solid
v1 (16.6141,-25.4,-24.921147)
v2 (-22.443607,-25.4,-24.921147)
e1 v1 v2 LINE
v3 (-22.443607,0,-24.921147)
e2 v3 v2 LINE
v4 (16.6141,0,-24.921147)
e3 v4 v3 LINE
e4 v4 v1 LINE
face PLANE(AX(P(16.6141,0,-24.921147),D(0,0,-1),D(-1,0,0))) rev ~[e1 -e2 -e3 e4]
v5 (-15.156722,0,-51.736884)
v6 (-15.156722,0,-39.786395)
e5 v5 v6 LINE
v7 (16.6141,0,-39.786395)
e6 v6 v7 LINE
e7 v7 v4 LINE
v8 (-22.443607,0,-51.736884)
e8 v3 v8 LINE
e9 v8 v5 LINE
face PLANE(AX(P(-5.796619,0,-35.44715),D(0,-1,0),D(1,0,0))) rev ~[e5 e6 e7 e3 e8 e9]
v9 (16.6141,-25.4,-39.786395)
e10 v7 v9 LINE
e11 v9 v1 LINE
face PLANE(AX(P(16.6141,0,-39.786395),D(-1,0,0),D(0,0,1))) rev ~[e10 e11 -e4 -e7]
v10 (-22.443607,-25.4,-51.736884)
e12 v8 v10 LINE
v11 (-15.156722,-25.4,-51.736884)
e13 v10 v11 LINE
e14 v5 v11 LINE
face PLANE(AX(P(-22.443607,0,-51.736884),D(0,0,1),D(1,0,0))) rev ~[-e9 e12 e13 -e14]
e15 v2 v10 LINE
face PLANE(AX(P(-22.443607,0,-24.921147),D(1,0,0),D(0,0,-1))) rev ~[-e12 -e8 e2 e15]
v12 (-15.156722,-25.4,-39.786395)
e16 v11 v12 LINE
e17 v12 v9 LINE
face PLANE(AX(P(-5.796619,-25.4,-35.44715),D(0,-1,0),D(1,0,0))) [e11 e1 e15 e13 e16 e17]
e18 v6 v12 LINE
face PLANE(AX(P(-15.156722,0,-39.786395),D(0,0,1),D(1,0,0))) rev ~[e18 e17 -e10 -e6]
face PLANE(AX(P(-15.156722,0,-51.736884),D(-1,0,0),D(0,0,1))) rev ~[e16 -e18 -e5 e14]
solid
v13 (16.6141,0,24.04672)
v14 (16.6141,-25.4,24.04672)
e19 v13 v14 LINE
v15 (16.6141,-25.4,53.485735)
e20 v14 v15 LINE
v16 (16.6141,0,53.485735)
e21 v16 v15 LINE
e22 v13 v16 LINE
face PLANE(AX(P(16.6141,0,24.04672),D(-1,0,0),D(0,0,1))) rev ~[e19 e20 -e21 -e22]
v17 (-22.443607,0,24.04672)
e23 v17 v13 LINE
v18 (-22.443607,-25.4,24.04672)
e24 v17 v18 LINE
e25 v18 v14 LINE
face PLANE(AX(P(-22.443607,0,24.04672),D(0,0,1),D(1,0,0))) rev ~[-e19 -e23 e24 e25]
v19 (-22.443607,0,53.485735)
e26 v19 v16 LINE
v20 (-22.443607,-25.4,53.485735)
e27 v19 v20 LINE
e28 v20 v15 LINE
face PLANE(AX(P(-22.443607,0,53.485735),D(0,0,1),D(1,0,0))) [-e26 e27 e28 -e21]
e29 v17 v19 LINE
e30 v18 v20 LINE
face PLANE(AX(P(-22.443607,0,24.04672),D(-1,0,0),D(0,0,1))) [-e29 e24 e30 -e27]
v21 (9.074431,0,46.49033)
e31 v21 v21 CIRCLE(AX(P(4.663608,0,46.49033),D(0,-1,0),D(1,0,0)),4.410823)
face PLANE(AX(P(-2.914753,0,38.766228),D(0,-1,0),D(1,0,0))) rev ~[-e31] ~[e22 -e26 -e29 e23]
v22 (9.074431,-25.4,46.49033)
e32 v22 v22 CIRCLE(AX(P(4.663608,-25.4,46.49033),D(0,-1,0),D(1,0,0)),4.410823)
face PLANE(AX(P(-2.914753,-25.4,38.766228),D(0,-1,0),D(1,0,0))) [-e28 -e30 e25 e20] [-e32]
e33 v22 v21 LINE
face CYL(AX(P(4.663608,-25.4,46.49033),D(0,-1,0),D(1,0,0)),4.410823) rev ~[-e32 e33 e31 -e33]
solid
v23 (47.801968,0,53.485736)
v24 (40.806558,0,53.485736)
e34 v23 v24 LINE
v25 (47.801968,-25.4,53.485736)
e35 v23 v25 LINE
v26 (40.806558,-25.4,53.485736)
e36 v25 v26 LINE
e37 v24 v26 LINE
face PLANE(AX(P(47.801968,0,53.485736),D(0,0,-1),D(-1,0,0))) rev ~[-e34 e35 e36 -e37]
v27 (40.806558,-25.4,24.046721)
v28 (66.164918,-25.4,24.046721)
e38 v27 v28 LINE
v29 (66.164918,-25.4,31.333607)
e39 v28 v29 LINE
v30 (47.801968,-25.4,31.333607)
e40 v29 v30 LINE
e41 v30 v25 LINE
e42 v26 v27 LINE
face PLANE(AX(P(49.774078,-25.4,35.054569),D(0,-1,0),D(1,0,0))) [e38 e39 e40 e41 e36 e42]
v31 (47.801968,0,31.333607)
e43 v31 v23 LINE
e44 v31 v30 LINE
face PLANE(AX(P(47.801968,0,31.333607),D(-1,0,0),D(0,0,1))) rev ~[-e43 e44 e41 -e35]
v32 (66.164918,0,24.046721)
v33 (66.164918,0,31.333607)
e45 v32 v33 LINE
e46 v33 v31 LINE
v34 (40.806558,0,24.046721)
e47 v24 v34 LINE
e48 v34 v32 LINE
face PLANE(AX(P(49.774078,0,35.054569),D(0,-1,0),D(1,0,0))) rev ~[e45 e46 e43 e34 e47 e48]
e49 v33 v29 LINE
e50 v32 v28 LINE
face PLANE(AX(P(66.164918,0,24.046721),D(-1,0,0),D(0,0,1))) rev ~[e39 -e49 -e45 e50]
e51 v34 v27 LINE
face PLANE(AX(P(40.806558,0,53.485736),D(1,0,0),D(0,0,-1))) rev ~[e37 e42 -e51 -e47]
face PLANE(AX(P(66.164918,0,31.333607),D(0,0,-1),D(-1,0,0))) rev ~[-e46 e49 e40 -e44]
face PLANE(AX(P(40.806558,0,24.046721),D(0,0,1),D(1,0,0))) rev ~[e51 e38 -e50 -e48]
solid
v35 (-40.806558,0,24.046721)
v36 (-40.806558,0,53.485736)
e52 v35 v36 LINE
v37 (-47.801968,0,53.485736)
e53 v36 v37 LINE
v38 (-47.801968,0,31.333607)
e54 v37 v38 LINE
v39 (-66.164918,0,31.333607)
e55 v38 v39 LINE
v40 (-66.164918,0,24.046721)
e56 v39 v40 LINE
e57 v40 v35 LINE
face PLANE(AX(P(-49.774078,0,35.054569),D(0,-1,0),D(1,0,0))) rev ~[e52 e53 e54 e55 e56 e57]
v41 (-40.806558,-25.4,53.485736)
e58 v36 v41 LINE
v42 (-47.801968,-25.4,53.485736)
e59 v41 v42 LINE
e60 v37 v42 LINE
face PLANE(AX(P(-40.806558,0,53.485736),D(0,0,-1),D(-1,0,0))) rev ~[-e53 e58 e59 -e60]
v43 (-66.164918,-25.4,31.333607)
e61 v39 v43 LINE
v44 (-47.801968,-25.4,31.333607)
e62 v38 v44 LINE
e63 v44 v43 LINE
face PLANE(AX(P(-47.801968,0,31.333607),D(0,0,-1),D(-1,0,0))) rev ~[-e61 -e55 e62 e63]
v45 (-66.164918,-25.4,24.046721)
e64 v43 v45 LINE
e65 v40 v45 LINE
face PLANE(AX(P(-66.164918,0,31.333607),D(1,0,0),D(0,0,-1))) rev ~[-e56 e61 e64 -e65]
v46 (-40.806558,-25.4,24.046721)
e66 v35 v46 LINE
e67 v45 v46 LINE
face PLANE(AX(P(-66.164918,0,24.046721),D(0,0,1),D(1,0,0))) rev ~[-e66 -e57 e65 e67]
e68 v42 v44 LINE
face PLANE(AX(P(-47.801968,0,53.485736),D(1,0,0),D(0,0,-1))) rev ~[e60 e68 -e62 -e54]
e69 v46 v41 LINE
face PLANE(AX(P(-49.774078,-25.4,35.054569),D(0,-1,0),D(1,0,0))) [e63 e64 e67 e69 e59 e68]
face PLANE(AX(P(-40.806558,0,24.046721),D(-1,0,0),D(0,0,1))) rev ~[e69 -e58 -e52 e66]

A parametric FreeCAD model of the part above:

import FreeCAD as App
import Part
import Sketcher

V = App.Vector
Q = App.Units.Quantity


def add_polygon(sketch, points):
    """Adds a closed chain of lines whose ends are joined by coincident constraints."""
    first, n = sketch.GeometryCount, len(points)
    for a, b in zip(points, points[1:] + points[:1]):
        sketch.addGeometry(Part.LineSegment(App.Vector(*a, 0), App.Vector(*b, 0)), False)
    for i in range(n):
        sketch.addConstraint(Sketcher.Constraint("Coincident", first + i, 2, first + (i + 1) % n, 1))

doc = App.newDocument("Part")
body = doc.addObject("PartDesign::Body", "Body")
body.AllowCompound = True

sketch1 = body.newObject("Sketcher::SketchObject", "Sketch")
sketch1.AttachmentSupport = (doc.getObject("XZ_Plane"), [""])
sketch1.MapMode = "FlatFace"
add_polygon(sketch1, [(-22, 53), (-22, 24), (17, 24), (17, 53)])
add_polygon(sketch1, [(48, 53), (41, 53), (41, 24), (66, 24), (66, 31), (48, 31)])
add_polygon(sketch1, [(-41, 53), (-48, 53), (-48, 31), (-66, 31), (-66, 24), (-41, 24)])
add_polygon(sketch1, [(17, -25), (-22, -25), (-22, -52), (-15, -52), (-15, -40), (17, -40)])
sketch1.addConstraint([
    Sketcher.Constraint("Vertical", 0),
    Sketcher.Constraint("Horizontal", 1),
    Sketcher.Constraint("Vertical", 2),
    Sketcher.Constraint("Horizontal", 3),
    Sketcher.Constraint("Horizontal", 4),
    Sketcher.Constraint("Vertical", 5),
    Sketcher.Constraint("Horizontal", 6),
    Sketcher.Constraint("Vertical", 7),
    Sketcher.Constraint("Horizontal", 8),
    Sketcher.Constraint("Vertical", 9),
    Sketcher.Constraint("Horizontal", 10),
    Sketcher.Constraint("Vertical", 11),
    Sketcher.Constraint("Horizontal", 12),
    Sketcher.Constraint("Vertical", 13),
    Sketcher.Constraint("Horizontal", 14),
    Sketcher.Constraint("Vertical", 15),
    Sketcher.Constraint("Horizontal", 16),
    Sketcher.Constraint("Vertical", 17),
    Sketcher.Constraint("Horizontal", 18),
    Sketcher.Constraint("Vertical", 19),
    Sketcher.Constraint("Horizontal", 20),
    Sketcher.Constraint("Vertical", 21),
    Sketcher.Constraint("Symmetric", 9, 2, 10, 2, -2),
    Sketcher.Constraint("Symmetric", 7, 2, 12, 2, -2),
    Sketcher.Constraint("Symmetric", 5, 2, 14, 2, -2),
    Sketcher.Constraint("Horizontal", 3, 2, 4, 2),
    Sketcher.Constraint("Horizontal", 1, 2, 5, 2),
    Sketcher.Constraint("Vertical", 3, 2, 16, 2),
    Sketcher.Constraint("Vertical", 2, 2, 20, 2),
    Sketcher.Constraint("Equal", 18, 7),
    Sketcher.Constraint("DistanceX", 4, 2, 4, 1, Q("6.99541 mm")),
    Sketcher.Constraint("DistanceX", 6, 1, 6, 2, Q("25.35836 mm")),
    Sketcher.Constraint("DistanceY", 9, 1, 9, 2, Q("22.152129 mm")),
    Sketcher.Constraint("DistanceY", 19, 1, 19, 2, Q("11.950489 mm")),
    Sketcher.Constraint("DistanceX", -1, 1, 1, 2, Q("16.6141 mm")),
    Sketcher.Constraint("DistanceX", 1, 1, 1, 2, Q("39.057707 mm")),
    Sketcher.Constraint("DistanceX", 18, 1, 18, 2, Q("7.286885 mm")),
    Sketcher.Constraint("DistanceY", 17, 2, 17, 1, Q("26.815737 mm")),
    Sketcher.Constraint("DistanceY", -1, 1, 0, 2, Q("24.04672 mm")),
    Sketcher.Constraint("DistanceX", -1, 1, 4, 2, Q("40.806558 mm")),
    Sketcher.Constraint("DistanceY", 16, 2, 14, 2, Q("48.967868 mm")),
])
pad1 = body.newObject("PartDesign::Pad", "Pad")
pad1.Profile = sketch1
pad1.Length = Q("1 in")

sketch2 = body.newObject("Sketcher::SketchObject", "Sketch001")
sketch2.AttachmentSupport = (doc.getObject("XZ_Plane"), [""])
sketch2.MapMode = "FlatFace"
sketch2.AttachmentOffset = App.Placement(V(0, 0, 1 * 25.4), App.Rotation())
sketch2.addGeometry(Part.Circle(V(4.7, 46.5, 0), V(0, 0, 1), 4.4), False)
sketch2.addConstraint([
    Sketcher.Constraint("Diameter", 0, Q("8.821646 mm")),
    Sketcher.Constraint("DistanceY", -1, 1, 0, 3, Q("46.49033 mm")),
    Sketcher.Constraint("DistanceX", -1, 1, 0, 3, Q("4.663608 mm")),
])
pocket1 = body.newObject("PartDesign::Pocket", "Pocket")
pocket1.Profile = sketch2
pocket1.Length = Q("1 in")

doc.recompute()
